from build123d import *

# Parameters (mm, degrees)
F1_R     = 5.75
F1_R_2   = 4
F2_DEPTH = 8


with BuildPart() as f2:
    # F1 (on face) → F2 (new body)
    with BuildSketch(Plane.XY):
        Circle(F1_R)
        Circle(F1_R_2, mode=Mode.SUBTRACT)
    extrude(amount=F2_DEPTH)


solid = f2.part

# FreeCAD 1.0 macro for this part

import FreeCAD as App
import Part
import Sketcher
from FreeCAD import Vector

doc = App.newDocument("Part")
body = doc.addObject("PartDesign::Body", "Body")

# Sketch on XY plane
sketch1 = body.newObject("Sketcher::SketchObject", "Sketch")
sketch1.AttachmentSupport = (doc.getObject("XY_Plane"), [""])
sketch1.MapMode = "FlatFace"
sketch1.addGeometry(Part.Circle(Vector(0, 0, 0), Vector(0, 0, 1), 5.8), False)
sketch1.addGeometry(Part.Circle(Vector(0, 0, 0), Vector(0, 0, 1), 4), False)
sketch1.addConstraint(Sketcher.Constraint("Coincident", 0, 3, -1, 1))
sketch1.addConstraint(Sketcher.Constraint("Coincident", 1, 3, -1, 1))
sketch1.addConstraint(Sketcher.Constraint("Diameter", 1, 8.0))
sketch1.addConstraint(Sketcher.Constraint("Diameter", 0, 11.5))
pad1 = body.newObject("PartDesign::Pad", "Pad")
pad1.Profile = sketch1
pad1.Length = 8

doc.recompute()
